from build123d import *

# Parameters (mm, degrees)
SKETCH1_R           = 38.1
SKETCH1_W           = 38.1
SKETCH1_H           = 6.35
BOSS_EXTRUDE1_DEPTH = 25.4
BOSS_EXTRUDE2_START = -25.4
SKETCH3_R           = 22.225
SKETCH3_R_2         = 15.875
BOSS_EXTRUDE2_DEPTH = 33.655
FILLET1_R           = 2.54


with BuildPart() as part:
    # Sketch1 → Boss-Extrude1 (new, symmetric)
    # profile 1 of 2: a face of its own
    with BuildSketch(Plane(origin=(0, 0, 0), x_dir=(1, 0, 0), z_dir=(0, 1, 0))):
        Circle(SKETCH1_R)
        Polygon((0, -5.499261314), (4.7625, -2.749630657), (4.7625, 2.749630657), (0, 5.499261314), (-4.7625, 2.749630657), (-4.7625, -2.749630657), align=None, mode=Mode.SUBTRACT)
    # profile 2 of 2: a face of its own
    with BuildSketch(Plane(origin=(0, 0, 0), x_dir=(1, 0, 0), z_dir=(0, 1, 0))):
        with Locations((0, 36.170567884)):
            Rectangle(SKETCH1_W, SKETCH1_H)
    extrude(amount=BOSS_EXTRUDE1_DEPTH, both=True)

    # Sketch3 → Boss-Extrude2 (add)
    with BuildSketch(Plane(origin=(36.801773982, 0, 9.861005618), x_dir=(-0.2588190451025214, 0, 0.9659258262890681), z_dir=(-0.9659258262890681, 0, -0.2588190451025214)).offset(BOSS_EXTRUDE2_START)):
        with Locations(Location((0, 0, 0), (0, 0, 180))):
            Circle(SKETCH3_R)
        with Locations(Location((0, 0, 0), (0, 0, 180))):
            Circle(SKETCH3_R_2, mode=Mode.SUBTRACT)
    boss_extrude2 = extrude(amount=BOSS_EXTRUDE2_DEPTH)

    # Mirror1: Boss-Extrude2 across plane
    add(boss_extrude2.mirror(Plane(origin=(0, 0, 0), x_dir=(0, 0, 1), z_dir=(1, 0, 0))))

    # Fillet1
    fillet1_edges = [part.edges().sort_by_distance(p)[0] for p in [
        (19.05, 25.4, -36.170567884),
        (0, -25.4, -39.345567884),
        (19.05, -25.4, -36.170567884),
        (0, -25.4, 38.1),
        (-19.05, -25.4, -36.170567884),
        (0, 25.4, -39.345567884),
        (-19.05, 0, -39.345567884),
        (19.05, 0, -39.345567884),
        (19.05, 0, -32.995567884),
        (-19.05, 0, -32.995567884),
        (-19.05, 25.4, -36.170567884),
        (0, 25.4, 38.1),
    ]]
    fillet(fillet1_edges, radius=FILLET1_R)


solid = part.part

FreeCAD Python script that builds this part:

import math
import FreeCAD as App
import Part
import Sketcher

V = App.Vector
Q = App.Units.Quantity


def edges_at(feature, points):
    """Names of the edges that pass closest to the given points."""
    edges = feature.Shape.Edges
    near = lambda p: min(range(len(edges)), key=lambda i: edges[i].distToShape(Part.Vertex(*p))[0])
    return sorted({f"Edge{near(p) + 1}" for p in points})

doc = App.newDocument("Part")
body = doc.addObject("PartDesign::Body", "Body")

# Sketch on XZ plane
sketch1 = doc.addObject("Sketcher::SketchObject", "Sketch")
body.addObject(sketch1)
sketch1.AttachmentSupport = (doc.XZ_Plane, [""])
sketch1.MapMode = "FlatFace"
sketch1.addGeometry(Part.ArcOfCircle(Part.Circle(V(0, 0, 0), V(0, 0, 1), 38), math.radians(-60), math.radians(240)), False)
sketch1.addGeometry(Part.LineSegment(V(19, -33, 0), V(19, -39, 0)), False)
sketch1.addGeometry(Part.LineSegment(V(19, -39, 0), V(-19, -39, 0)), False)
sketch1.addGeometry(Part.LineSegment(V(-19, -39, 0), V(-19, -33, 0)), False)
sketch1.addGeometry(Part.LineSegment(V(5, 3, 0), V(0, 5, 0)), False)
sketch1.addGeometry(Part.LineSegment(V(0, 5, 0), V(-5, 3, 0)), False)
sketch1.addGeometry(Part.LineSegment(V(-5, 3, 0), V(-5, -3, 0)), False)
sketch1.addGeometry(Part.LineSegment(V(-5, -3, 0), V(0, -5, 0)), False)
sketch1.addGeometry(Part.LineSegment(V(0, -5, 0), V(5, -3, 0)), False)
sketch1.addGeometry(Part.LineSegment(V(5, -3, 0), V(5, 3, 0)), False)
sketch1.addConstraint(Sketcher.Constraint("Coincident", 0, 1, 1, 1))
sketch1.addConstraint(Sketcher.Constraint("Coincident", 1, 2, 2, 1))
sketch1.addConstraint(Sketcher.Constraint("Coincident", 2, 2, 3, 1))
sketch1.addConstraint(Sketcher.Constraint("Coincident", 3, 2, 0, 2))
sketch1.addConstraint(Sketcher.Constraint("Coincident", 4, 2, 5, 1))
sketch1.addConstraint(Sketcher.Constraint("Coincident", 5, 2, 6, 1))
sketch1.addConstraint(Sketcher.Constraint("Coincident", 6, 2, 7, 1))
sketch1.addConstraint(Sketcher.Constraint("Coincident", 7, 2, 8, 1))
sketch1.addConstraint(Sketcher.Constraint("Coincident", 8, 2, 9, 1))
sketch1.addConstraint(Sketcher.Constraint("Coincident", 9, 2, 4, 1))
sketch1.addConstraint(Sketcher.Constraint("Vertical", 1))
sketch1.addConstraint(Sketcher.Constraint("Horizontal", 2))
sketch1.addConstraint(Sketcher.Constraint("Vertical", 3))
sketch1.addConstraint(Sketcher.Constraint("Vertical", 6))
sketch1.addConstraint(Sketcher.Constraint("Vertical", 9))
sketch1.addConstraint(Sketcher.Constraint("Coincident", 0, 3, -1, 1))
sketch1.addConstraint(Sketcher.Constraint("Symmetric", 4, 2, 7, 2, -1, 1))
sketch1.addConstraint(Sketcher.Constraint("Symmetric", 5, 2, 8, 2, -1, 1))
sketch1.addConstraint(Sketcher.Constraint("PointOnObject", 4, 2, -2))
sketch1.addConstraint(Sketcher.Constraint("Parallel", 4, 7))
sketch1.addConstraint(Sketcher.Constraint("Horizontal", 0, 1, 3, 2))
sketch1.addConstraint(Sketcher.Constraint("Horizontal", 6, 2, 8, 2))
sketch1.addConstraint(Sketcher.Constraint("Radius", 0, Q("1.5 in")))
sketch1.addConstraint(Sketcher.Constraint("DistanceX", 2, 2, 2, 1, Q("1.5 in")))
sketch1.addConstraint(Sketcher.Constraint("Angle", 4, Q("150 deg")))
sketch1.addConstraint(Sketcher.Constraint("DistanceY", 1, 2, 1, 1, Q("0.25 in")))
sketch1.addConstraint(Sketcher.Constraint("DistanceX", 5, 2, -1, 1, Q("0.1875 in")))
sketch1.addConstraint(Sketcher.Constraint("DistanceY", 6, 2, 6, 1, Q("5.499261 mm")))
pad1 = doc.addObject("PartDesign::Pad", "Pad")
body.addObject(pad1)
pad1.Profile = sketch1
pad1.Length = Q("2 in")
pad1.Midplane = True

# Sketch on an angled plane
sketch2 = doc.addObject("Sketcher::SketchObject", "Sketch001")
body.addObject(sketch2)
sketch2.Placement = App.Placement(V(61.33629, 0, 16.435009), App.Rotation(V(-0.258819045, 0, 0.965925826), V(0, 0.999999999, 0), V(-0.965925826, 0, -0.258819045), "ZXY"))
sketch2.addGeometry(Part.Circle(V(0, 0, 0), V(0, 0, 1), 22), False)
sketch2.addGeometry(Part.Circle(V(0, 0, 0), V(0, 0, 1), 16), False)
sketch2.addConstraint(Sketcher.Constraint("Coincident", 0, 3, -1, 1))
sketch2.addConstraint(Sketcher.Constraint("Coincident", 1, 3, -1, 1))
sketch2.addConstraint(Sketcher.Constraint("Diameter", 0, Q("1.75 in")))
sketch2.addConstraint(Sketcher.Constraint("Diameter", 1, Q("1.25 in")))
pad2 = doc.addObject("PartDesign::Pad", "Pad001")
body.addObject(pad2)
pad2.Profile = sketch2
pad2.Length = Q("1.325 in")
doc.recompute()

mirrored = doc.addObject("PartDesign::Mirrored", "Mirrored")
body.addObject(mirrored)
mirrored.Originals = [pad2]
mirrored.MirrorPlane = (doc.YZ_Plane, [""])
body.Tip = mirrored
doc.recompute()

fillet = doc.addObject("PartDesign::Fillet", "Fillet")
body.addObject(fillet)
fillet.Base = (mirrored, edges_at(mirrored, [
    (19.05, 25.4, -36.171),
    (0, -25.4, -39.346),
    (19.05, -25.4, -36.171),
    (0, -25.4, 38.1),
    (-19.05, -25.4, -36.171),
    (0, 25.4, -39.346),
    (-19.05, 0, -39.346),
    (19.05, 0, -39.346),
    (19.05, 0, -32.996),
    (-19.05, 0, -32.996),
    (-19.05, 25.4, -36.171),
    (0, 25.4, 38.1),
]))
fillet.Radius = Q("0.1 in")

doc.recompute()
